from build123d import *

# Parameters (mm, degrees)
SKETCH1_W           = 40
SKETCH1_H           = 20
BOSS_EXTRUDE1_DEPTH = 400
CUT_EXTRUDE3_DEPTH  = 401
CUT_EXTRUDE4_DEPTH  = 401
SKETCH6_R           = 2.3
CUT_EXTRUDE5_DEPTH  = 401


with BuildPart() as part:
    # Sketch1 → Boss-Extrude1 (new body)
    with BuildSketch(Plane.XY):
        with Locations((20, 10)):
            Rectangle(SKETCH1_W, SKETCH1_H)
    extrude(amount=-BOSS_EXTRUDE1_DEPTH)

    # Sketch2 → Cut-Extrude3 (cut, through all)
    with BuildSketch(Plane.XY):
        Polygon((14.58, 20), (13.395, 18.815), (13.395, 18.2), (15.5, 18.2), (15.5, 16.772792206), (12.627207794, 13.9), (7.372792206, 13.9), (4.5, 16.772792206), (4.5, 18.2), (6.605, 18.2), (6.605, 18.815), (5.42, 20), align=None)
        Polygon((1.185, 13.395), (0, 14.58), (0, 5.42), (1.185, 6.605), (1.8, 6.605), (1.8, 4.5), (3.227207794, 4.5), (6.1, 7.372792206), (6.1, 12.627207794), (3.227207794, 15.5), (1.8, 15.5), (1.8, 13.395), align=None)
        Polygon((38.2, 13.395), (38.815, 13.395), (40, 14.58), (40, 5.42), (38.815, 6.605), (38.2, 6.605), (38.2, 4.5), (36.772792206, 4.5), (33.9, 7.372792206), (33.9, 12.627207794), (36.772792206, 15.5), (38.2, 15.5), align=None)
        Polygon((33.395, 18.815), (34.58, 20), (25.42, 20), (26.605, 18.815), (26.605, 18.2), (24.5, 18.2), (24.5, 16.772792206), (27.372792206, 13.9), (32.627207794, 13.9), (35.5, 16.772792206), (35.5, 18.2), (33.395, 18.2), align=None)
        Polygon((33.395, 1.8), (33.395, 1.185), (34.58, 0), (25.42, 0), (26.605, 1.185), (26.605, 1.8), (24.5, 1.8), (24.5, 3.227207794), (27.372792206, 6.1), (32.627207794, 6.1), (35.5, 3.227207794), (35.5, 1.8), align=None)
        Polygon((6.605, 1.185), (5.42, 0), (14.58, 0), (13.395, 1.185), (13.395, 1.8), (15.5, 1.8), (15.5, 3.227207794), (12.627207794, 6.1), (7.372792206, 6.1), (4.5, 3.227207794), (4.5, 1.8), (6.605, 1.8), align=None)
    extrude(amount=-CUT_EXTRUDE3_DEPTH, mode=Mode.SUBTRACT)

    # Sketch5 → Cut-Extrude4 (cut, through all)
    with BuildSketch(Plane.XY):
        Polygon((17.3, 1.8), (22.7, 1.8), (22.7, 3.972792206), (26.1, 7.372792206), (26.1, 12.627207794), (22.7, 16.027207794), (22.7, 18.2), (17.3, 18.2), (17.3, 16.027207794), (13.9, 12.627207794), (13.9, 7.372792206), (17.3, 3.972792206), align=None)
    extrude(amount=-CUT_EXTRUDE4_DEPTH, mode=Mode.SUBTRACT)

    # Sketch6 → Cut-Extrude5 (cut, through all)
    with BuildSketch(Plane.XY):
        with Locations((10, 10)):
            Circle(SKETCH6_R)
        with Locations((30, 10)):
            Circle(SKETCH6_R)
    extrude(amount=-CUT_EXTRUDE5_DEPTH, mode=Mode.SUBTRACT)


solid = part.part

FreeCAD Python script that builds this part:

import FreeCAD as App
import Part
import Sketcher
from FreeCAD import Vector
Q = App.Units.Quantity

doc = App.newDocument("Part")
body = doc.addObject("PartDesign::Body", "Body")

sketch1 = doc.addObject("Sketcher::SketchObject", "Sketch")
body.addObject(sketch1)
sketch1.AttachmentSupport = (doc.XY_Plane, [""])
sketch1.MapMode = "FlatFace"
sketch1.addGeometry([
    Part.LineSegment(Vector(0, 20, 0), Vector(0, 0, 0)),
    Part.LineSegment(Vector(0, 0, 0), Vector(40, 0, 0)),
    Part.LineSegment(Vector(40, 0, 0), Vector(40, 20, 0)),
    Part.LineSegment(Vector(40, 20, 0), Vector(0, 20, 0)),
], False)
sketch1.addConstraint([
    Sketcher.Constraint("Coincident", 0, 2, 1, 1),
    Sketcher.Constraint("Coincident", 1, 2, 2, 1),
    Sketcher.Constraint("Coincident", 2, 2, 3, 1),
    Sketcher.Constraint("Coincident", 3, 2, 0, 1),
    Sketcher.Constraint("Vertical", 0),
    Sketcher.Constraint("Horizontal", 1),
    Sketcher.Constraint("Vertical", 2),
    Sketcher.Constraint("Horizontal", 3),
    Sketcher.Constraint("Coincident", 0, 2, -1, 1),
    Sketcher.Constraint("DistanceX", 1, 1, 1, 2, Q("40 mm")),
    Sketcher.Constraint("DistanceY", 0, 2, 0, 1, Q("20 mm")),
])
pad1 = doc.addObject("PartDesign::Pad", "Pad")
body.addObject(pad1)
pad1.Profile = sketch1
pad1.Length = 400
pad1.Reversed = True

sketch2 = doc.addObject("Sketcher::SketchObject", "Sketch001")
body.addObject(sketch2)
sketch2.AttachmentSupport = (doc.XY_Plane, [""])
sketch2.MapMode = "FlatFace"
sketch2.addGeometry([
    Part.LineSegment(Vector(13.4, 18.8, 0), Vector(14.6, 20, 0)),
    Part.LineSegment(Vector(14.6, 20, 0), Vector(5.4, 20, 0)),
    Part.LineSegment(Vector(5.4, 20, 0), Vector(6.6, 18.8, 0)),
    Part.LineSegment(Vector(6.6, 18.8, 0), Vector(6.6, 18.2, 0)),
    Part.LineSegment(Vector(6.6, 18.2, 0), Vector(4.5, 18.2, 0)),
    Part.LineSegment(Vector(4.5, 18.2, 0), Vector(4.5, 16.8, 0)),
    Part.LineSegment(Vector(4.5, 16.8, 0), Vector(7.4, 13.9, 0)),
    Part.LineSegment(Vector(7.4, 13.9, 0), Vector(12.6, 13.9, 0)),
    Part.LineSegment(Vector(12.6, 13.9, 0), Vector(15.5, 16.8, 0)),
    Part.LineSegment(Vector(15.5, 16.8, 0), Vector(15.5, 18.2, 0)),
    Part.LineSegment(Vector(15.5, 18.2, 0), Vector(13.4, 18.2, 0)),
    Part.LineSegment(Vector(13.4, 18.2, 0), Vector(13.4, 18.8, 0)),
    Part.LineSegment(Vector(1.2, 13.4, 0), Vector(0, 14.6, 0)),
    Part.LineSegment(Vector(0, 14.6, 0), Vector(0, 5.4, 0)),
    Part.LineSegment(Vector(0, 5.4, 0), Vector(1.2, 6.6, 0)),
    Part.LineSegment(Vector(1.2, 6.6, 0), Vector(1.8, 6.6, 0)),
    Part.LineSegment(Vector(1.8, 6.6, 0), Vector(1.8, 4.5, 0)),
    Part.LineSegment(Vector(1.8, 4.5, 0), Vector(3.2, 4.5, 0)),
    Part.LineSegment(Vector(3.2, 4.5, 0), Vector(6.1, 7.4, 0)),
    Part.LineSegment(Vector(6.1, 7.4, 0), Vector(6.1, 12.6, 0)),
    Part.LineSegment(Vector(6.1, 12.6, 0), Vector(3.2, 15.5, 0)),
    Part.LineSegment(Vector(3.2, 15.5, 0), Vector(1.8, 15.5, 0)),
    Part.LineSegment(Vector(1.8, 15.5, 0), Vector(1.8, 13.4, 0)),
    Part.LineSegment(Vector(1.8, 13.4, 0), Vector(1.2, 13.4, 0)),
    Part.LineSegment(Vector(38.8, 13.4, 0), Vector(38.2, 13.4, 0)),
    Part.LineSegment(Vector(38.2, 13.4, 0), Vector(38.2, 15.5, 0)),
    Part.LineSegment(Vector(38.2, 15.5, 0), Vector(36.8, 15.5, 0)),
    Part.LineSegment(Vector(36.8, 15.5, 0), Vector(33.9, 12.6, 0)),
    Part.LineSegment(Vector(33.9, 12.6, 0), Vector(33.9, 7.4, 0)),
    Part.LineSegment(Vector(33.9, 7.4, 0), Vector(36.8, 4.5, 0)),
    Part.LineSegment(Vector(36.8, 4.5, 0), Vector(38.2, 4.5, 0)),
    Part.LineSegment(Vector(38.2, 4.5, 0), Vector(38.2, 6.6, 0)),
    Part.LineSegment(Vector(38.2, 6.6, 0), Vector(38.8, 6.6, 0)),
    Part.LineSegment(Vector(38.8, 6.6, 0), Vector(40, 5.4, 0)),
    Part.LineSegment(Vector(40, 5.4, 0), Vector(40, 14.6, 0)),
    Part.LineSegment(Vector(40, 14.6, 0), Vector(38.8, 13.4, 0)),
    Part.LineSegment(Vector(33.4, 18.8, 0), Vector(34.6, 20, 0)),
    Part.LineSegment(Vector(34.6, 20, 0), Vector(25.4, 20, 0)),
    Part.LineSegment(Vector(25.4, 20, 0), Vector(26.6, 18.8, 0)),
    Part.LineSegment(Vector(26.6, 18.8, 0), Vector(26.6, 18.2, 0)),
    Part.LineSegment(Vector(26.6, 18.2, 0), Vector(24.5, 18.2, 0)),
    Part.LineSegment(Vector(24.5, 18.2, 0), Vector(24.5, 16.8, 0)),
    Part.LineSegment(Vector(24.5, 16.8, 0), Vector(27.4, 13.9, 0)),
    Part.LineSegment(Vector(27.4, 13.9, 0), Vector(32.6, 13.9, 0)),
    Part.LineSegment(Vector(32.6, 13.9, 0), Vector(35.5, 16.8, 0)),
    Part.LineSegment(Vector(35.5, 16.8, 0), Vector(35.5, 18.2, 0)),
    Part.LineSegment(Vector(35.5, 18.2, 0), Vector(33.4, 18.2, 0)),
    Part.LineSegment(Vector(33.4, 18.2, 0), Vector(33.4, 18.8, 0)),
    Part.LineSegment(Vector(33.4, 1.2, 0), Vector(33.4, 1.8, 0)),
    Part.LineSegment(Vector(33.4, 1.8, 0), Vector(35.5, 1.8, 0)),
    Part.LineSegment(Vector(35.5, 1.8, 0), Vector(35.5, 3.2, 0)),
    Part.LineSegment(Vector(35.5, 3.2, 0), Vector(32.6, 6.1, 0)),
    Part.LineSegment(Vector(32.6, 6.1, 0), Vector(27.4, 6.1, 0)),
    Part.LineSegment(Vector(27.4, 6.1, 0), Vector(24.5, 3.2, 0)),
    Part.LineSegment(Vector(24.5, 3.2, 0), Vector(24.5, 1.8, 0)),
    Part.LineSegment(Vector(24.5, 1.8, 0), Vector(26.6, 1.8, 0)),
    Part.LineSegment(Vector(26.6, 1.8, 0), Vector(26.6, 1.2, 0)),
    Part.LineSegment(Vector(26.6, 1.2, 0), Vector(25.4, 0, 0)),
    Part.LineSegment(Vector(25.4, 0, 0), Vector(34.6, 0, 0)),
    Part.LineSegment(Vector(34.6, 0, 0), Vector(33.4, 1.2, 0)),
    Part.LineSegment(Vector(6.6, 1.2, 0), Vector(5.4, 0, 0)),
    Part.LineSegment(Vector(5.4, 0, 0), Vector(14.6, 0, 0)),
    Part.LineSegment(Vector(14.6, 0, 0), Vector(13.4, 1.2, 0)),
    Part.LineSegment(Vector(13.4, 1.2, 0), Vector(13.4, 1.8, 0)),
    Part.LineSegment(Vector(13.4, 1.8, 0), Vector(15.5, 1.8, 0)),
    Part.LineSegment(Vector(15.5, 1.8, 0), Vector(15.5, 3.2, 0)),
    Part.LineSegment(Vector(15.5, 3.2, 0), Vector(12.6, 6.1, 0)),
    Part.LineSegment(Vector(12.6, 6.1, 0), Vector(7.4, 6.1, 0)),
    Part.LineSegment(Vector(7.4, 6.1, 0), Vector(4.5, 3.2, 0)),
    Part.LineSegment(Vector(4.5, 3.2, 0), Vector(4.5, 1.8, 0)),
    Part.LineSegment(Vector(4.5, 1.8, 0), Vector(6.6, 1.8, 0)),
    Part.LineSegment(Vector(6.6, 1.8, 0), Vector(6.6, 1.2, 0)),
], False)
sketch2.addConstraint([
    Sketcher.Constraint("Coincident", 0, 2, 1, 1),
    Sketcher.Constraint("Coincident", 1, 2, 2, 1),
    Sketcher.Constraint("Coincident", 2, 2, 3, 1),
    Sketcher.Constraint("Coincident", 3, 2, 4, 1),
    Sketcher.Constraint("Coincident", 4, 2, 5, 1),
    Sketcher.Constraint("Coincident", 5, 2, 6, 1),
    Sketcher.Constraint("Coincident", 6, 2, 7, 1),
    Sketcher.Constraint("Coincident", 7, 2, 8, 1),
    Sketcher.Constraint("Coincident", 8, 2, 9, 1),
    Sketcher.Constraint("Coincident", 9, 2, 10, 1),
    Sketcher.Constraint("Coincident", 10, 2, 11, 1),
    Sketcher.Constraint("Coincident", 11, 2, 0, 1),
    Sketcher.Constraint("Coincident", 12, 2, 13, 1),
    Sketcher.Constraint("Coincident", 13, 2, 14, 1),
    Sketcher.Constraint("Coincident", 14, 2, 15, 1),
    Sketcher.Constraint("Coincident", 15, 2, 16, 1),
    Sketcher.Constraint("Coincident", 16, 2, 17, 1),
    Sketcher.Constraint("Coincident", 17, 2, 18, 1),
    Sketcher.Constraint("Coincident", 18, 2, 19, 1),
    Sketcher.Constraint("Coincident", 19, 2, 20, 1),
    Sketcher.Constraint("Coincident", 20, 2, 21, 1),
    Sketcher.Constraint("Coincident", 21, 2, 22, 1),
    Sketcher.Constraint("Coincident", 22, 2, 23, 1),
    Sketcher.Constraint("Coincident", 23, 2, 12, 1),
    Sketcher.Constraint("Coincident", 24, 2, 25, 1),
    Sketcher.Constraint("Coincident", 25, 2, 26, 1),
    Sketcher.Constraint("Coincident", 26, 2, 27, 1),
    Sketcher.Constraint("Coincident", 27, 2, 28, 1),
    Sketcher.Constraint("Coincident", 28, 2, 29, 1),
    Sketcher.Constraint("Coincident", 29, 2, 30, 1),
    Sketcher.Constraint("Coincident", 30, 2, 31, 1),
    Sketcher.Constraint("Coincident", 31, 2, 32, 1),
    Sketcher.Constraint("Coincident", 32, 2, 33, 1),
    Sketcher.Constraint("Coincident", 33, 2, 34, 1),
    Sketcher.Constraint("Coincident", 34, 2, 35, 1),
    Sketcher.Constraint("Coincident", 35, 2, 24, 1),
    Sketcher.Constraint("Coincident", 36, 2, 37, 1),
    Sketcher.Constraint("Coincident", 37, 2, 38, 1),
    Sketcher.Constraint("Coincident", 38, 2, 39, 1),
    Sketcher.Constraint("Coincident", 39, 2, 40, 1),
    Sketcher.Constraint("Coincident", 40, 2, 41, 1),
    Sketcher.Constraint("Coincident", 41, 2, 42, 1),
    Sketcher.Constraint("Coincident", 42, 2, 43, 1),
    Sketcher.Constraint("Coincident", 43, 2, 44, 1),
    Sketcher.Constraint("Coincident", 44, 2, 45, 1),
    Sketcher.Constraint("Coincident", 45, 2, 46, 1),
    Sketcher.Constraint("Coincident", 46, 2, 47, 1),
    Sketcher.Constraint("Coincident", 47, 2, 36, 1),
    Sketcher.Constraint("Coincident", 48, 2, 49, 1),
    Sketcher.Constraint("Coincident", 49, 2, 50, 1),
    Sketcher.Constraint("Coincident", 50, 2, 51, 1),
    Sketcher.Constraint("Coincident", 51, 2, 52, 1),
    Sketcher.Constraint("Coincident", 52, 2, 53, 1),
    Sketcher.Constraint("Coincident", 53, 2, 54, 1),
    Sketcher.Constraint("Coincident", 54, 2, 55, 1),
    Sketcher.Constraint("Coincident", 55, 2, 56, 1),
    Sketcher.Constraint("Coincident", 56, 2, 57, 1),
    Sketcher.Constraint("Coincident", 57, 2, 58, 1),
    Sketcher.Constraint("Coincident", 58, 2, 59, 1),
    Sketcher.Constraint("Coincident", 59, 2, 48, 1),
    Sketcher.Constraint("Coincident", 60, 2, 61, 1),
    Sketcher.Constraint("Coincident", 61, 2, 62, 1),
    Sketcher.Constraint("Coincident", 62, 2, 63, 1),
    Sketcher.Constraint("Coincident", 63, 2, 64, 1),
    Sketcher.Constraint("Coincident", 64, 2, 65, 1),
    Sketcher.Constraint("Coincident", 65, 2, 66, 1),
    Sketcher.Constraint("Coincident", 66, 2, 67, 1),
    Sketcher.Constraint("Coincident", 67, 2, 68, 1),
    Sketcher.Constraint("Coincident", 68, 2, 69, 1),
    Sketcher.Constraint("Coincident", 69, 2, 70, 1),
    Sketcher.Constraint("Coincident", 70, 2, 71, 1),
    Sketcher.Constraint("Coincident", 71, 2, 60, 1),
    Sketcher.Constraint("Horizontal", 1),
    Sketcher.Constraint("Vertical", 3),
    Sketcher.Constraint("Horizontal", 4),
    Sketcher.Constraint("Vertical", 5),
    Sketcher.Constraint("Horizontal", 7),
    Sketcher.Constraint("Vertical", 9),
    Sketcher.Constraint("Horizontal", 10),
    Sketcher.Constraint("Vertical", 11),
    Sketcher.Constraint("Vertical", 13),
    Sketcher.Constraint("Horizontal", 15),
    Sketcher.Constraint("Vertical", 16),
    Sketcher.Constraint("Horizontal", 17),
    Sketcher.Constraint("Vertical", 19),
    Sketcher.Constraint("Horizontal", 21),
    Sketcher.Constraint("Vertical", 22),
    Sketcher.Constraint("Horizontal", 23),
    Sketcher.Constraint("Horizontal", 24),
    Sketcher.Constraint("Vertical", 25),
    Sketcher.Constraint("Horizontal", 26),
    Sketcher.Constraint("Vertical", 28),
    Sketcher.Constraint("Horizontal", 30),
    Sketcher.Constraint("Vertical", 31),
    Sketcher.Constraint("Horizontal", 32),
    Sketcher.Constraint("Vertical", 34),
    Sketcher.Constraint("Horizontal", 37),
    Sketcher.Constraint("Vertical", 39),
    Sketcher.Constraint("Horizontal", 40),
    Sketcher.Constraint("Vertical", 41),
    Sketcher.Constraint("Horizontal", 43),
    Sketcher.Constraint("Vertical", 45),
    Sketcher.Constraint("Horizontal", 46),
    Sketcher.Constraint("Vertical", 47),
    Sketcher.Constraint("Vertical", 48),
    Sketcher.Constraint("Horizontal", 49),
    Sketcher.Constraint("Vertical", 50),
    Sketcher.Constraint("Horizontal", 52),
    Sketcher.Constraint("Vertical", 54),
    Sketcher.Constraint("Horizontal", 55),
    Sketcher.Constraint("Vertical", 56),
    Sketcher.Constraint("Horizontal", 58),
    Sketcher.Constraint("Horizontal", 61),
    Sketcher.Constraint("Vertical", 63),
    Sketcher.Constraint("Horizontal", 64),
    Sketcher.Constraint("Vertical", 65),
    Sketcher.Constraint("Horizontal", 67),
    Sketcher.Constraint("Vertical", 69),
    Sketcher.Constraint("Horizontal", 70),
    Sketcher.Constraint("Vertical", 71),
    Sketcher.Constraint("PointOnObject", 12, 2, -2),
    Sketcher.Constraint("PointOnObject", 57, 2, -1),
    Sketcher.Constraint("PointOnObject", 60, 2, -1),
    Sketcher.Constraint("Perpendicular", 0, 2),
    Sketcher.Constraint("Parallel", 2, 6),
    Sketcher.Constraint("Perpendicular", 6, 8),
    Sketcher.Constraint("Perpendicular", 8, 12),
    Sketcher.Constraint("Perpendicular", 12, 14),
    Sketcher.Constraint("Parallel", 14, 18),
    Sketcher.Constraint("Perpendicular", 18, 20),
    Sketcher.Constraint("Perpendicular", 20, 27),
    Sketcher.Constraint("Perpendicular", 27, 29),
    Sketcher.Constraint("Parallel", 29, 33),
    Sketcher.Constraint("Perpendicular", 33, 35),
    Sketcher.Constraint("Parallel", 35, 36),
    Sketcher.Constraint("Perpendicular", 36, 38),
    Sketcher.Constraint("Parallel", 38, 42),
    Sketcher.Constraint("Perpendicular", 42, 44),
    Sketcher.Constraint("Perpendicular", 44, 51),
    Sketcher.Constraint("Perpendicular", 51, 53),
    Sketcher.Constraint("Parallel", 53, 57),
    Sketcher.Constraint("Perpendicular", 57, 59),
    Sketcher.Constraint("Perpendicular", 59, 60),
    Sketcher.Constraint("Perpendicular", 60, 62),
    Sketcher.Constraint("Parallel", 62, 66),
    Sketcher.Constraint("Perpendicular", 66, 68),
    Sketcher.Constraint("Horizontal", 5, 2, 8, 2),
    Sketcher.Constraint("Horizontal", 4, 2, 9, 2),
    Sketcher.Constraint("Horizontal", 2, 2, 11, 2),
    Sketcher.Constraint("Horizontal", 23, 2, 24, 2),
    Sketcher.Constraint("Horizontal", 21, 2, 25, 2),
    Sketcher.Constraint("Horizontal", 19, 2, 27, 2),
    Sketcher.Constraint("Horizontal", 18, 2, 28, 2),
    Sketcher.Constraint("Horizontal", 17, 2, 29, 2),
    Sketcher.Constraint("Horizontal", 15, 2, 31, 2),
    Sketcher.Constraint("Horizontal", 13, 2, 33, 2),
    Sketcher.Constraint("Horizontal", 12, 2, 34, 2),
    Sketcher.Constraint("Horizontal", 1, 2, 36, 2),
    Sketcher.Constraint("Horizontal", 11, 2, 38, 2),
    Sketcher.Constraint("Horizontal", 10, 2, 39, 2),
    Sketcher.Constraint("Horizontal", 8, 2, 41, 2),
    Sketcher.Constraint("Horizontal", 7, 2, 42, 2),
    Sketcher.Constraint("Horizontal", 41, 2, 44, 2),
    Sketcher.Constraint("Horizontal", 40, 2, 45, 2),
    Sketcher.Constraint("Horizontal", 38, 2, 47, 2),
    Sketcher.Constraint("Horizontal", 50, 2, 53, 2),
    Sketcher.Constraint("Horizontal", 49, 2, 54, 2),
    Sketcher.Constraint("Horizontal", 56, 2, 59, 2),
    Sketcher.Constraint("Horizontal", 59, 2, 62, 2),
    Sketcher.Constraint("Horizontal", 55, 2, 63, 2),
    Sketcher.Constraint("Horizontal", 53, 2, 65, 2),
    Sketcher.Constraint("Horizontal", 52, 2, 66, 2),
    Sketcher.Constraint("Horizontal", 65, 2, 68, 2),
    Sketcher.Constraint("Horizontal", 64, 2, 69, 2),
    Sketcher.Constraint("Horizontal", 62, 2, 71, 2),
    Sketcher.Constraint("Vertical", 17, 2, 20, 2),
    Sketcher.Constraint("Vertical", 16, 2, 21, 2),
    Sketcher.Constraint("Vertical", 14, 2, 23, 2),
    Sketcher.Constraint("Vertical", 26, 2, 29, 2),
    Sketcher.Constraint("Vertical", 25, 2, 30, 2),
    Sketcher.Constraint("Vertical", 47, 2, 48, 2),
    Sketcher.Constraint("Vertical", 45, 2, 49, 2),
    Sketcher.Constraint("Vertical", 43, 2, 51, 2),
    Sketcher.Constraint("Vertical", 42, 2, 52, 2),
    Sketcher.Constraint("Vertical", 39, 2, 55, 2),
    Sketcher.Constraint("Vertical", 37, 2, 57, 2),
    Sketcher.Constraint("Vertical", 1, 2, 60, 2),
    Sketcher.Constraint("Vertical", 0, 2, 61, 2),
    Sketcher.Constraint("Vertical", 9, 2, 64, 2),
    Sketcher.Constraint("Vertical", 6, 2, 67, 2),
    Sketcher.Constraint("Equal", 4, 10),
    Sketcher.Constraint("Equal", 23, 24),
    Sketcher.Constraint("Equal", 21, 26),
    Sketcher.Constraint("Equal", 1, 37),
    Sketcher.Constraint("Equal", 10, 40),
    Sketcher.Constraint("Equal", 7, 43),
    Sketcher.Constraint("Equal", 32, 3),
    Sketcher.Constraint("Equal", 30, 5),
    Sketcher.Constraint("Equal", 61, 13),
    Sketcher.Constraint("Equal", 70, 16),
    Sketcher.Constraint("Equal", 67, 19),
    Sketcher.Constraint("Equal", 16, 22),
    Sketcher.Constraint("Equal", 47, 48),
    Sketcher.Constraint("Equal", 45, 50),
    Sketcher.Constraint("Equal", 2, 12),
    Sketcher.Constraint("DistanceY", -1, 1, 0, 2, Q("20 mm")),
    Sketcher.Constraint("DistanceX", -1, 1, 33, 2, Q("40 mm")),
    Sketcher.Constraint("DistanceX", 1, 2, 1, 1, Q("9.16 mm")),
    Sketcher.Constraint("DistanceY", -1, 1, 3, 2, Q("18.2 mm")),
    Sketcher.Constraint("DistanceX", -1, 1, 4, 2, Q("4.5 mm")),
    Sketcher.Constraint("DistanceY", -1, 1, 6, 2, Q("13.9 mm")),
    Sketcher.Constraint("DistanceX", -1, 1, 8, 2, Q("15.5 mm")),
    Sketcher.Constraint("DistanceY", -1, 1, 16, 2, Q("4.5 mm")),
    Sketcher.Constraint("DistanceX", -1, 1, 40, 2, Q("24.5 mm")),
    Sketcher.Constraint("DistanceX", 4, 2, 4, 1, Q("2.105 mm")),
    Sketcher.Constraint("Distance", 6, Q("4.062742 mm")),
])
pocket1 = doc.addObject("PartDesign::Pocket", "Pocket")
body.addObject(pocket1)
pocket1.Profile = sketch2
pocket1.Type = "ThroughAll"

sketch3 = doc.addObject("Sketcher::SketchObject", "Sketch002")
body.addObject(sketch3)
sketch3.AttachmentSupport = (doc.XY_Plane, [""])
sketch3.MapMode = "FlatFace"
sketch3.addGeometry([
    Part.LineSegment(Vector(17.3, 1.8, 0), Vector(22.7, 1.8, 0)),
    Part.LineSegment(Vector(22.7, 1.8, 0), Vector(22.7, 4, 0)),
    Part.LineSegment(Vector(22.7, 4, 0), Vector(26.1, 7.4, 0)),
    Part.LineSegment(Vector(26.1, 7.4, 0), Vector(26.1, 12.6, 0)),
    Part.LineSegment(Vector(26.1, 12.6, 0), Vector(22.7, 16, 0)),
    Part.LineSegment(Vector(22.7, 16, 0), Vector(22.7, 18.2, 0)),
    Part.LineSegment(Vector(22.7, 18.2, 0), Vector(17.3, 18.2, 0)),
    Part.LineSegment(Vector(17.3, 18.2, 0), Vector(17.3, 16, 0)),
    Part.LineSegment(Vector(17.3, 16, 0), Vector(13.9, 12.6, 0)),
    Part.LineSegment(Vector(13.9, 12.6, 0), Vector(13.9, 7.4, 0)),
    Part.LineSegment(Vector(13.9, 7.4, 0), Vector(17.3, 4, 0)),
    Part.LineSegment(Vector(17.3, 4, 0), Vector(17.3, 1.8, 0)),
], False)
sketch3.addConstraint([
    Sketcher.Constraint("Coincident", 0, 2, 1, 1),
    Sketcher.Constraint("Coincident", 1, 2, 2, 1),
    Sketcher.Constraint("Coincident", 2, 2, 3, 1),
    Sketcher.Constraint("Coincident", 3, 2, 4, 1),
    Sketcher.Constraint("Coincident", 4, 2, 5, 1),
    Sketcher.Constraint("Coincident", 5, 2, 6, 1),
    Sketcher.Constraint("Coincident", 6, 2, 7, 1),
    Sketcher.Constraint("Coincident", 7, 2, 8, 1),
    Sketcher.Constraint("Coincident", 8, 2, 9, 1),
    Sketcher.Constraint("Coincident", 9, 2, 10, 1),
    Sketcher.Constraint("Coincident", 10, 2, 11, 1),
    Sketcher.Constraint("Coincident", 11, 2, 0, 1),
    Sketcher.Constraint("Horizontal", 0),
    Sketcher.Constraint("Vertical", 1),
    Sketcher.Constraint("Vertical", 3),
    Sketcher.Constraint("Vertical", 5),
    Sketcher.Constraint("Horizontal", 6),
    Sketcher.Constraint("Vertical", 7),
    Sketcher.Constraint("Vertical", 9),
    Sketcher.Constraint("Vertical", 11),
    Sketcher.Constraint("Perpendicular", 2, 4),
    Sketcher.Constraint("Perpendicular", 4, 8),
    Sketcher.Constraint("Perpendicular", 8, 10),
    Sketcher.Constraint("Horizontal", 4, 2, 7, 2),
    Sketcher.Constraint("Horizontal", 3, 2, 8, 2),
    Sketcher.Constraint("Horizontal", 2, 2, 9, 2),
    Sketcher.Constraint("Horizontal", 1, 2, 10, 2),
    Sketcher.Constraint("Vertical", 1, 2, 4, 2),
    Sketcher.Constraint("Vertical", 7, 2, 10, 2),
    Sketcher.Constraint("Equal", 1, 5),
    Sketcher.Constraint("DistanceX", 0, 1, 0, 2, Q("5.4 mm")),
    Sketcher.Constraint("DistanceX", -1, 1, 0, 2, Q("22.7 mm")),
    Sketcher.Constraint("DistanceY", -1, 1, 0, 2, Q("1.8 mm")),
    Sketcher.Constraint("DistanceX", -1, 1, 2, 2, Q("26.1 mm")),
    Sketcher.Constraint("DistanceY", -1, 1, 5, 2, Q("18.2 mm")),
    Sketcher.Constraint("DistanceY", 1, 1, 1, 2, Q("2.172792 mm")),
])
pocket2 = doc.addObject("PartDesign::Pocket", "Pocket001")
body.addObject(pocket2)
pocket2.Profile = sketch3
pocket2.Type = "ThroughAll"

sketch4 = doc.addObject("Sketcher::SketchObject", "Sketch003")
body.addObject(sketch4)
sketch4.AttachmentSupport = (doc.XY_Plane, [""])
sketch4.MapMode = "FlatFace"
sketch4.addGeometry([
    Part.Circle(Vector(10, 10, 0), Vector(0, 0, 1), 2.3),
    Part.Circle(Vector(30, 10, 0), Vector(0, 0, 1), 2.3),
], False)
sketch4.addConstraint([
    Sketcher.Constraint("Equal", 0, 1),
    Sketcher.Constraint("Horizontal", 0, 3, 1, 3),
    Sketcher.Constraint("Diameter", 0, Q("4.6 mm")),
    Sketcher.Constraint("DistanceX", -1, 1, 0, 3, Q("10 mm")),
    Sketcher.Constraint("DistanceY", -1, 1, 0, 3, Q("10 mm")),
    Sketcher.Constraint("DistanceX", -1, 1, 1, 3, Q("30 mm")),
])
pocket3 = doc.addObject("PartDesign::Pocket", "Pocket002")
body.addObject(pocket3)
pocket3.Profile = sketch4
pocket3.Type = "ThroughAll"

doc.recompute()
